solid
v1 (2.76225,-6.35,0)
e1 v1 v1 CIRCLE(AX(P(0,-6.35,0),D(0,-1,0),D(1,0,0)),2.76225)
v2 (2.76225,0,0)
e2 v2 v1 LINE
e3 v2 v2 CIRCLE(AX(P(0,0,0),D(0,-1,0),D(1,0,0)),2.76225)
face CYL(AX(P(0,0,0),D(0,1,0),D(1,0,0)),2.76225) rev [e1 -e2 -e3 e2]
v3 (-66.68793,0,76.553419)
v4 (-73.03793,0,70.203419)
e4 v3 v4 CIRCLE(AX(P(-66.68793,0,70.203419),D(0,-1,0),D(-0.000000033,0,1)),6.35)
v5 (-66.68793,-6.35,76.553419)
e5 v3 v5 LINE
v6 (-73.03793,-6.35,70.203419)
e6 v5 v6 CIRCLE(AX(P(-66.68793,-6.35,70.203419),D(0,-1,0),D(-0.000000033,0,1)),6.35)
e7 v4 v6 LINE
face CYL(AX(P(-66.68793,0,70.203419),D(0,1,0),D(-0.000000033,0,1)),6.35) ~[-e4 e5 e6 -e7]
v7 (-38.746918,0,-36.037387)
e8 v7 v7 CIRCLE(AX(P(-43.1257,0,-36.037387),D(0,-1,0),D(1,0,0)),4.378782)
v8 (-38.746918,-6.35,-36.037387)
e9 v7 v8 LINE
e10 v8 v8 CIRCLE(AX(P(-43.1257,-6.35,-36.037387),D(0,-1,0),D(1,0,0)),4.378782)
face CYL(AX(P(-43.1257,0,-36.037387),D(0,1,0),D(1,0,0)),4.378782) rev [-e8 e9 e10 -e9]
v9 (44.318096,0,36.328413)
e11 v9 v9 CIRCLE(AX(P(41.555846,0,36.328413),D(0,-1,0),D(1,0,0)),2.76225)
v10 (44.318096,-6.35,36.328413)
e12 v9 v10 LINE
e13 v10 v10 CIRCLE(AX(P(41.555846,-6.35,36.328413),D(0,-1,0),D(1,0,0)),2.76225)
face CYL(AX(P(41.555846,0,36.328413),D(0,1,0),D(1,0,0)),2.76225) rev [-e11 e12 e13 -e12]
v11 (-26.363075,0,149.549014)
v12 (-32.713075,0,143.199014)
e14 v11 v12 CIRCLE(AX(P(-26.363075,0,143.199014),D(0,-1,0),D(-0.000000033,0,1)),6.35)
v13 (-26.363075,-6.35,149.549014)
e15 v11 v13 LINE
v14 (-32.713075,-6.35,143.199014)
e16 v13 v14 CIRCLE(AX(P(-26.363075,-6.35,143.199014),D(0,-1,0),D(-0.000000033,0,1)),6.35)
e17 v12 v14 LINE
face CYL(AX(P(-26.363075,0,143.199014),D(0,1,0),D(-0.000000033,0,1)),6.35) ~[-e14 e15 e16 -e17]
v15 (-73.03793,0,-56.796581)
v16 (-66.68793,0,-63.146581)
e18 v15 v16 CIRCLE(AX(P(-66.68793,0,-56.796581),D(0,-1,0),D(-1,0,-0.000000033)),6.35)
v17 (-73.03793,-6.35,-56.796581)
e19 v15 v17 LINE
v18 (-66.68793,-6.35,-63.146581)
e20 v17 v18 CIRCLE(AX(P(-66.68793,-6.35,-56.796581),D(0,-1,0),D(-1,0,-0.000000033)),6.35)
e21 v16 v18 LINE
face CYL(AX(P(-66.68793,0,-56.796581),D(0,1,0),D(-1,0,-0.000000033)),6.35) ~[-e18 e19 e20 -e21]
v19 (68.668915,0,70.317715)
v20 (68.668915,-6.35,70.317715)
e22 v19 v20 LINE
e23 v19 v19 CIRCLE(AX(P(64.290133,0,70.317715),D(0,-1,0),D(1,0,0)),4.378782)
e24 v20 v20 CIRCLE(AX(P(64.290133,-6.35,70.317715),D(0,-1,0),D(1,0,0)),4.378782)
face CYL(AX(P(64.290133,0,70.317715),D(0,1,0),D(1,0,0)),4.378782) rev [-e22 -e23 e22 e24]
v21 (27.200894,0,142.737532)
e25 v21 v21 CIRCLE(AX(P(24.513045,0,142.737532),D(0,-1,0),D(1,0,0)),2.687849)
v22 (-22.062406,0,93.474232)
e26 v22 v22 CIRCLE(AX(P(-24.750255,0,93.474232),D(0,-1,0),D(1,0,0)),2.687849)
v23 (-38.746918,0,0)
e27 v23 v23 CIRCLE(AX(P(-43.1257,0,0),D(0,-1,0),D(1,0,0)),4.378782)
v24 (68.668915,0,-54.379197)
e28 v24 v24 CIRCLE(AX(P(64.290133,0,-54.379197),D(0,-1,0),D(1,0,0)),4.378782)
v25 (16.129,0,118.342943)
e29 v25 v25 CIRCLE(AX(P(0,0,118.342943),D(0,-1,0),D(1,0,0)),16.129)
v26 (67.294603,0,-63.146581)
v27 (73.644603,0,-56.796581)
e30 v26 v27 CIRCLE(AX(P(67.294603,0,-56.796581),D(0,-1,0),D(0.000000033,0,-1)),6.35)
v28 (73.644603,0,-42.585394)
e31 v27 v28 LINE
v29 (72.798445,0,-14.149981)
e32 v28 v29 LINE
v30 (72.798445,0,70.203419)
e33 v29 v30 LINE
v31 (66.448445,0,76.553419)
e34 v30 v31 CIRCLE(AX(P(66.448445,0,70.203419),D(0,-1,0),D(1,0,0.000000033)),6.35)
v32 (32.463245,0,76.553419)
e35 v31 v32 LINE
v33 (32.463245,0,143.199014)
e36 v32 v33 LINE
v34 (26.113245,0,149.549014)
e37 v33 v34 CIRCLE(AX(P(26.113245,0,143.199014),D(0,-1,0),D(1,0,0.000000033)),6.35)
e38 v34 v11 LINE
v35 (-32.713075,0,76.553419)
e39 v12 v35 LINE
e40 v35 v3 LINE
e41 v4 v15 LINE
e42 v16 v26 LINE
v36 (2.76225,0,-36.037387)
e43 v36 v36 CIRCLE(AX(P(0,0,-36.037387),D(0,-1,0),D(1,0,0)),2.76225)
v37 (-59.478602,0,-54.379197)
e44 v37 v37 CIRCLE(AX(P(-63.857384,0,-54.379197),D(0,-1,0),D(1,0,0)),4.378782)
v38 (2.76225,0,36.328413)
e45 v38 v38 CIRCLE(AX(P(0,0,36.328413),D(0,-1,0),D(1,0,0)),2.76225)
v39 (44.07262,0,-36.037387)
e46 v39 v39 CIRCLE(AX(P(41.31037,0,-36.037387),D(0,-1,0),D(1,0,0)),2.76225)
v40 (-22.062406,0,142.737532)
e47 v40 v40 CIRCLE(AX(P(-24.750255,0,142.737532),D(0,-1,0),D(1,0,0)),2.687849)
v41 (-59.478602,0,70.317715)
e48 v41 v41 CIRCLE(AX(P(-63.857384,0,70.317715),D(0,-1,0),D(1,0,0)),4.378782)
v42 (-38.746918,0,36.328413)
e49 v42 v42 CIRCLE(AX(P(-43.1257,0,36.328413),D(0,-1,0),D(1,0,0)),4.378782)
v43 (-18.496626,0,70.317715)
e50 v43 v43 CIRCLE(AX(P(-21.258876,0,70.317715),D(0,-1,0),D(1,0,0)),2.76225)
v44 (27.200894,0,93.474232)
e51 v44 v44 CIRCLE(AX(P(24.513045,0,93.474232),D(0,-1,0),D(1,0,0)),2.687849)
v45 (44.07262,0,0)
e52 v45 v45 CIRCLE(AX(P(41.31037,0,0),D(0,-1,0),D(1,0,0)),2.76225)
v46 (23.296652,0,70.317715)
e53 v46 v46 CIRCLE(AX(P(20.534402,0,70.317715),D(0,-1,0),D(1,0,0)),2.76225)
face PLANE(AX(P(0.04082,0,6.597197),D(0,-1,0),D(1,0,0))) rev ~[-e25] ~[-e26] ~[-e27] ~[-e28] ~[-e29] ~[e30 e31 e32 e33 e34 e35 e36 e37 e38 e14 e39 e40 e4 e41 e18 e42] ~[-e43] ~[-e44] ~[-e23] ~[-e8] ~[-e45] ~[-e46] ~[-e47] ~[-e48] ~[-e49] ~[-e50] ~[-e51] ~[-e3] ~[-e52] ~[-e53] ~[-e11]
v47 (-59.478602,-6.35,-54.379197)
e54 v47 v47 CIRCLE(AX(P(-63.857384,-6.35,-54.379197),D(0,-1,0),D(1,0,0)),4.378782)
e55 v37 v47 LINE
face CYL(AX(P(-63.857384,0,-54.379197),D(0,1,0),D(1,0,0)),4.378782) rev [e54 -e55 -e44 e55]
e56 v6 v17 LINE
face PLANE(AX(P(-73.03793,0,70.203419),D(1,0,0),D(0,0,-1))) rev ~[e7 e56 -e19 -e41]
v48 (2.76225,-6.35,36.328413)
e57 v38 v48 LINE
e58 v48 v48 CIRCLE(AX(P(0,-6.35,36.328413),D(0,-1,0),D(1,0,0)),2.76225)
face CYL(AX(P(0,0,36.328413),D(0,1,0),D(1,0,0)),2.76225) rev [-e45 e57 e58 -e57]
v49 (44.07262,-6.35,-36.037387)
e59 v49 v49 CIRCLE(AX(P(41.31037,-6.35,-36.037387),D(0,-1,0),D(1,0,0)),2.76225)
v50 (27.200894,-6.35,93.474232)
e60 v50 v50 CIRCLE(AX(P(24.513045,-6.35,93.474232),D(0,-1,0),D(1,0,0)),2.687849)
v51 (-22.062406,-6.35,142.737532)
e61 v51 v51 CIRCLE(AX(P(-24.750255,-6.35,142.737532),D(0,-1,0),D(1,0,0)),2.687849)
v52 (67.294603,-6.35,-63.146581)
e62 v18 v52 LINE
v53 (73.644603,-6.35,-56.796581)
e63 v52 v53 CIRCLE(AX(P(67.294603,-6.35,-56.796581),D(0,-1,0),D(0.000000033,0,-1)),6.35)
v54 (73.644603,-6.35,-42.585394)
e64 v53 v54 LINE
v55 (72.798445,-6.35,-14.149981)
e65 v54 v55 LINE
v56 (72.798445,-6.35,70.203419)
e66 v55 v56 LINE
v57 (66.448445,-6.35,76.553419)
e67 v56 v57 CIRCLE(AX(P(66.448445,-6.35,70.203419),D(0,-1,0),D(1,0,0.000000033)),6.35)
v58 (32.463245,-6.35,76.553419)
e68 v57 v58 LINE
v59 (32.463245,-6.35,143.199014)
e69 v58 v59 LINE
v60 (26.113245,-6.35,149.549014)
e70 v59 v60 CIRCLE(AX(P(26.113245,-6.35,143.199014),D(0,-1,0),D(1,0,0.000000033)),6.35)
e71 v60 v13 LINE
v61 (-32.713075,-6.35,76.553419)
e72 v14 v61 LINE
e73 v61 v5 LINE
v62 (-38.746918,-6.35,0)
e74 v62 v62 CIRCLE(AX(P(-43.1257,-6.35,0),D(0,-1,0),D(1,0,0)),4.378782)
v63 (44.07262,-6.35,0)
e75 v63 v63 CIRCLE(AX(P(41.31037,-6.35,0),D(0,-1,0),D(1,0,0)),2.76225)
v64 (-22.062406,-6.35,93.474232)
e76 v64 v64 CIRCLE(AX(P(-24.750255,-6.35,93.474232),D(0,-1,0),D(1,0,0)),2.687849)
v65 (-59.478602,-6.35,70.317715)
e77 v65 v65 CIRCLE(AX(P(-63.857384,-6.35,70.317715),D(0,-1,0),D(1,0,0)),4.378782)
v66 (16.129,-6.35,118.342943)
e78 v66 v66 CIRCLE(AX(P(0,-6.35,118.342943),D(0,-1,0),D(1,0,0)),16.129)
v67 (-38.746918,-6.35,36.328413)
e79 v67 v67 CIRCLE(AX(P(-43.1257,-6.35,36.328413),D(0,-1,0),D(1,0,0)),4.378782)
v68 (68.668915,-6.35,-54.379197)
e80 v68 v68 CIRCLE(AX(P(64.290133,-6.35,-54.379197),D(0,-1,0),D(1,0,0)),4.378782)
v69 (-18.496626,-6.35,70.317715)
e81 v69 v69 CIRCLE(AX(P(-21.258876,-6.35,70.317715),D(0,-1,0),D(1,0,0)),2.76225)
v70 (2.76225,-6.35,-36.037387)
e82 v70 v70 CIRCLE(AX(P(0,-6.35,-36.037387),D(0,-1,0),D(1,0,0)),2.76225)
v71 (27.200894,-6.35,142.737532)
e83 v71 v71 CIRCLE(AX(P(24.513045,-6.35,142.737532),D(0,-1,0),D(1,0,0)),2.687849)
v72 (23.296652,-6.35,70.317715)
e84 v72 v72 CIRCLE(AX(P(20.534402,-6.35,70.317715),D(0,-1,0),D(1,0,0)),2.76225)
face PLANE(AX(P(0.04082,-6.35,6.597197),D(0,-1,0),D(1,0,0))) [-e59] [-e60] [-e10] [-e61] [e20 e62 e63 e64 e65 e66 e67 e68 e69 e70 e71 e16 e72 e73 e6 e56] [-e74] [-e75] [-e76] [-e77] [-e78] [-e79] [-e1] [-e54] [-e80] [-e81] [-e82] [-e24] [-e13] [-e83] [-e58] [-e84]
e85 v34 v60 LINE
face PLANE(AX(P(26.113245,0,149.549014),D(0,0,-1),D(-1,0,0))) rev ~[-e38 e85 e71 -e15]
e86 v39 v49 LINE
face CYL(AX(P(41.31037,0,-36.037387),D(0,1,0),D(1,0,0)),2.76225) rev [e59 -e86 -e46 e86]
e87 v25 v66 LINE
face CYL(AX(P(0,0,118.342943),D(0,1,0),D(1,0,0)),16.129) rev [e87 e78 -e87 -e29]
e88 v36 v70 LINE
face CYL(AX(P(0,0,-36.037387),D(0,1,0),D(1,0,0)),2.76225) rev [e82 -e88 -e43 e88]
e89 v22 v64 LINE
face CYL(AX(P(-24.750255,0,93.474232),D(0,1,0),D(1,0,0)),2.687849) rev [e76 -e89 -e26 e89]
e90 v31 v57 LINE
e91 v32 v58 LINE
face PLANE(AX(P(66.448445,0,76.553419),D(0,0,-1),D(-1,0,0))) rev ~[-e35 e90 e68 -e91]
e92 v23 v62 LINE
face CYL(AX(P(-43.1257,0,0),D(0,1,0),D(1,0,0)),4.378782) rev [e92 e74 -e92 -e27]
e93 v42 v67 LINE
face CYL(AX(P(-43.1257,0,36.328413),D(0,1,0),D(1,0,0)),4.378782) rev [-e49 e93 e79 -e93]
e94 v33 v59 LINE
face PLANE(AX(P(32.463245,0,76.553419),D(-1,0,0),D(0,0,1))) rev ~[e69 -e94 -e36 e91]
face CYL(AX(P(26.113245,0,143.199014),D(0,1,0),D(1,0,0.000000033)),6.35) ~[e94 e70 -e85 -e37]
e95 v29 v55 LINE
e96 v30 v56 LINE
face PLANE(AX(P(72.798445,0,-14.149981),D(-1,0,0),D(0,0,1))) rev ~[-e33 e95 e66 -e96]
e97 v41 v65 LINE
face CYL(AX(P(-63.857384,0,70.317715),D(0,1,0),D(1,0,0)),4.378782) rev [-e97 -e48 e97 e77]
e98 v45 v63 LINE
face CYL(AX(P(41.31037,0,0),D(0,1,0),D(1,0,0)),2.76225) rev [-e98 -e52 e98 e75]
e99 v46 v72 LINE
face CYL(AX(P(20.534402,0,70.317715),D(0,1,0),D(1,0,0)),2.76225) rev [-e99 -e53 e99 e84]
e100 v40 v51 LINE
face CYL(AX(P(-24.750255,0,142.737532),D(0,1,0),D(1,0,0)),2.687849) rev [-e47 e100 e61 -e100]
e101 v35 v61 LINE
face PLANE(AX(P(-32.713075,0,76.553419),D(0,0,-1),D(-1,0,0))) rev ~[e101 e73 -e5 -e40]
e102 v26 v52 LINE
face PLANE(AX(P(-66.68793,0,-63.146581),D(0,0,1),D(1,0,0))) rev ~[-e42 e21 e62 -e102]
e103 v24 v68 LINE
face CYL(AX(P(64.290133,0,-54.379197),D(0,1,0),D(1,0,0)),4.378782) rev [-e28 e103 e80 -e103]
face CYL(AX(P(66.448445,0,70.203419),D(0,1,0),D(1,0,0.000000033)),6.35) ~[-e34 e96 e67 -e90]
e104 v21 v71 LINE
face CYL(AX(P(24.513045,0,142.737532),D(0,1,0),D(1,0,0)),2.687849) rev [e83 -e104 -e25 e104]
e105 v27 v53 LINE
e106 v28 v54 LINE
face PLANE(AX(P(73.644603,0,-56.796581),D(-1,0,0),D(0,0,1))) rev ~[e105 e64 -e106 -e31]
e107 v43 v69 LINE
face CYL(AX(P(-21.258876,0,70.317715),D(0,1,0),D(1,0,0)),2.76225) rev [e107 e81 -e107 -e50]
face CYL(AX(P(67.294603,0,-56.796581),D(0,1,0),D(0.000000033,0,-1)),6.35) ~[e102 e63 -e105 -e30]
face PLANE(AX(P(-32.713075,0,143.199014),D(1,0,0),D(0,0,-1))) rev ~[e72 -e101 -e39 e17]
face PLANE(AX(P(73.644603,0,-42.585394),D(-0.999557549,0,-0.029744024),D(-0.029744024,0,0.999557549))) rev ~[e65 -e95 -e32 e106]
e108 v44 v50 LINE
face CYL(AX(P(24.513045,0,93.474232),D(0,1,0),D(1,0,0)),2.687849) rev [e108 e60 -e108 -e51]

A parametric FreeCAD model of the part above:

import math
import FreeCAD as App
import Part
import Sketcher
Q = App.Units.Quantity

doc = App.newDocument("Part")
body = doc.addObject("PartDesign::Body", "Body")

sketch1 = body.newObject("Sketcher::SketchObject", "Sketch")
sketch1.AttachmentSupport = (doc.getObject("XZ_Plane"), [""])
sketch1.MapMode = "FlatFace"
sketch1.addGeometry([
    Part.ArcOfCircle(Part.Circle(App.Vector(66.4, 70.2, 0), App.Vector(0, 0, 1), 6.4), math.radians(0), math.radians(90)),
    Part.LineSegment(App.Vector(66.4, 76.6, 0), App.Vector(32.5, 76.6, 0)),
    Part.LineSegment(App.Vector(32.5, 76.6, 0), App.Vector(32.5, 143.2, 0)),
    Part.ArcOfCircle(Part.Circle(App.Vector(26.1, 143.2, 0), App.Vector(0, 0, 1), 6.4), math.radians(0), math.radians(90)),
    Part.LineSegment(App.Vector(26.1, 149.5, 0), App.Vector(-26.4, 149.5, 0)),
    Part.ArcOfCircle(Part.Circle(App.Vector(-26.4, 143.2, 0), App.Vector(0, 0, 1), 6.4), math.radians(90), math.radians(180)),
    Part.LineSegment(App.Vector(-32.7, 143.2, 0), App.Vector(-32.7, 76.6, 0)),
    Part.LineSegment(App.Vector(-32.7, 76.6, 0), App.Vector(-66.7, 76.6, 0)),
    Part.ArcOfCircle(Part.Circle(App.Vector(-66.7, 70.2, 0), App.Vector(0, 0, 1), 6.4), math.radians(90), math.radians(180)),
    Part.LineSegment(App.Vector(-73, 70.2, 0), App.Vector(-73, -56.8, 0)),
    Part.ArcOfCircle(Part.Circle(App.Vector(-66.7, -56.8, 0), App.Vector(0, 0, 1), 6.4), math.radians(-180), math.radians(-90)),
    Part.LineSegment(App.Vector(-66.7, -63.1, 0), App.Vector(67.3, -63.1, 0)),
    Part.ArcOfCircle(Part.Circle(App.Vector(67.3, -56.8, 0), App.Vector(0, 0, 1), 6.4), math.radians(-90), math.radians(0)),
    Part.LineSegment(App.Vector(73.6, -56.8, 0), App.Vector(73.6, -42.6, 0)),
    Part.LineSegment(App.Vector(73.6, -42.6, 0), App.Vector(72.8, -14.1, 0)),
    Part.LineSegment(App.Vector(72.8, -14.1, 0), App.Vector(72.8, 70.2, 0)),
    Part.Circle(App.Vector(-63.9, -54.4, 0), App.Vector(0, 0, 1), 4.4),
    Part.Circle(App.Vector(-43.1, -36, 0), App.Vector(0, 0, 1), 4.4),
    Part.Circle(App.Vector(0, -36, 0), App.Vector(0, 0, 1), 2.8),
    Part.Circle(App.Vector(-43.1, 0, 0), App.Vector(0, 0, 1), 4.4),
    Part.Circle(App.Vector(-43.1, 36.3, 0), App.Vector(0, 0, 1), 4.4),
    Part.Circle(App.Vector(0, 0, 0), App.Vector(0, 0, 1), 2.8),
    Part.Circle(App.Vector(0, 36.3, 0), App.Vector(0, 0, 1), 2.8),
    Part.Circle(App.Vector(41.3, -36, 0), App.Vector(0, 0, 1), 2.8),
    Part.Circle(App.Vector(64.3, -54.4, 0), App.Vector(0, 0, 1), 4.4),
    Part.Circle(App.Vector(41.3, 0, 0), App.Vector(0, 0, 1), 2.8),
    Part.Circle(App.Vector(41.6, 36.3, 0), App.Vector(0, 0, 1), 2.8),
    Part.Circle(App.Vector(-63.9, 70.3, 0), App.Vector(0, 0, 1), 4.4),
    Part.Circle(App.Vector(-21.3, 70.3, 0), App.Vector(0, 0, 1), 2.8),
    Part.Circle(App.Vector(-24.8, 93.5, 0), App.Vector(0, 0, 1), 2.7),
    Part.Circle(App.Vector(0, 118.3, 0), App.Vector(0, 0, 1), 16.1),
    Part.Circle(App.Vector(-24.8, 142.7, 0), App.Vector(0, 0, 1), 2.7),
    Part.Circle(App.Vector(20.5, 70.3, 0), App.Vector(0, 0, 1), 2.8),
    Part.Circle(App.Vector(24.5, 93.5, 0), App.Vector(0, 0, 1), 2.7),
    Part.Circle(App.Vector(64.3, 70.3, 0), App.Vector(0, 0, 1), 4.4),
    Part.Circle(App.Vector(24.5, 142.7, 0), App.Vector(0, 0, 1), 2.7),
], False)
sketch1.addConstraint([
    Sketcher.Constraint("Tangent", 0, 2, 1, 1),
    Sketcher.Constraint("Coincident", 1, 2, 2, 1),
    Sketcher.Constraint("Tangent", 2, 2, 3, 1),
    Sketcher.Constraint("Tangent", 3, 2, 4, 1),
    Sketcher.Constraint("Tangent", 4, 2, 5, 1),
    Sketcher.Constraint("Tangent", 5, 2, 6, 1),
    Sketcher.Constraint("Coincident", 6, 2, 7, 1),
    Sketcher.Constraint("Tangent", 7, 2, 8, 1),
    Sketcher.Constraint("Tangent", 8, 2, 9, 1),
    Sketcher.Constraint("Tangent", 9, 2, 10, 1),
    Sketcher.Constraint("Tangent", 10, 2, 11, 1),
    Sketcher.Constraint("Tangent", 11, 2, 12, 1),
    Sketcher.Constraint("Tangent", 12, 2, 13, 1),
    Sketcher.Constraint("Coincident", 13, 2, 14, 1),
    Sketcher.Constraint("Coincident", 14, 2, 15, 1),
    Sketcher.Constraint("Tangent", 15, 2, 0, 1),
    Sketcher.Constraint("Horizontal", 1),
    Sketcher.Constraint("Vertical", 2),
    Sketcher.Constraint("Horizontal", 4),
    Sketcher.Constraint("Vertical", 6),
    Sketcher.Constraint("Horizontal", 7),
    Sketcher.Constraint("Vertical", 9),
    Sketcher.Constraint("Horizontal", 11),
    Sketcher.Constraint("Vertical", 13),
    Sketcher.Constraint("Vertical", 15),
    Sketcher.Constraint("Coincident", 21, 3, -1, 1),
    Sketcher.Constraint("Equal", 0, 3),
    Sketcher.Constraint("Equal", 3, 5),
    Sketcher.Constraint("Equal", 5, 8),
    Sketcher.Constraint("Equal", 8, 10),
    Sketcher.Constraint("Equal", 10, 12),
    Sketcher.Constraint("Equal", 16, 17),
    Sketcher.Constraint("Equal", 17, 19),
    Sketcher.Constraint("Equal", 19, 20),
    Sketcher.Constraint("Equal", 18, 21),
    Sketcher.Constraint("Equal", 21, 22),
    Sketcher.Constraint("Equal", 22, 23),
    Sketcher.Constraint("Equal", 20, 24),
    Sketcher.Constraint("Equal", 23, 25),
    Sketcher.Constraint("Equal", 25, 26),
    Sketcher.Constraint("Equal", 24, 27),
    Sketcher.Constraint("Equal", 26, 28),
    Sketcher.Constraint("Equal", 29, 31),
    Sketcher.Constraint("Equal", 28, 32),
    Sketcher.Constraint("Equal", 31, 33),
    Sketcher.Constraint("Equal", 27, 34),
    Sketcher.Constraint("Equal", 33, 35),
    Sketcher.Constraint("PointOnObject", 18, 3, -2),
    Sketcher.Constraint("PointOnObject", 19, 3, -1),
    Sketcher.Constraint("PointOnObject", 22, 3, -2),
    Sketcher.Constraint("PointOnObject", 25, 3, -1),
    Sketcher.Constraint("PointOnObject", 30, 3, -2),
    Sketcher.Constraint("Horizontal", 0, 3, 8, 3),
    Sketcher.Constraint("Horizontal", 17, 3, 18, 3),
    Sketcher.Constraint("Horizontal", 20, 3, 22, 3),
    Sketcher.Constraint("Horizontal", 18, 3, 23, 3),
    Sketcher.Constraint("Horizontal", 16, 3, 24, 3),
    Sketcher.Constraint("Horizontal", 22, 3, 26, 3),
    Sketcher.Constraint("Horizontal", 27, 3, 28, 3),
    Sketcher.Constraint("Horizontal", 28, 3, 32, 3),
    Sketcher.Constraint("Horizontal", 29, 3, 33, 3),
    Sketcher.Constraint("Horizontal", 32, 3, 34, 3),
    Sketcher.Constraint("Horizontal", 31, 3, 35, 3),
    Sketcher.Constraint("Vertical", 17, 3, 19, 3),
    Sketcher.Constraint("Vertical", 19, 3, 20, 3),
    Sketcher.Constraint("Vertical", 23, 3, 25, 3),
    Sketcher.Constraint("Vertical", 16, 3, 27, 3),
    Sketcher.Constraint("Vertical", 29, 3, 31, 3),
    Sketcher.Constraint("Vertical", 24, 3, 34, 3),
    Sketcher.Constraint("Vertical", 33, 3, 35, 3),
    Sketcher.Constraint("Diameter", 30, Q("1.27 in")),
    Sketcher.Constraint("DistanceY", 9, 2, 9, 1, Q("5 in")),
    Sketcher.Constraint("Radius", 0, Q("0.25 in")),
    Sketcher.Constraint("Diameter", 18, Q("0.2175 in")),
    Sketcher.Constraint("Distance", 14, Q("1.12 in")),
    Sketcher.Constraint("DistanceX", 1, 2, 1, 1, Q("1.338 in")),
    Sketcher.Constraint("DistanceY", 15, 1, 15, 2, Q("3.321 in")),
    Sketcher.Constraint("DistanceX", 33, 3, 0, 3, Q("1.651 in")),
    Sketcher.Constraint("Diameter", 16, Q("8.757564 mm")),
    Sketcher.Constraint("Diameter", 29, Q("5.375698 mm")),
    Sketcher.Constraint("DistanceY", 8, 3, 27, 3, Q("0.0044999 in")),
    Sketcher.Constraint("DistanceY", 29, 3, 31, 3, Q("1.9395 in")),
    Sketcher.Constraint("DistanceX", 31, 3, 3, 3, Q("2.0025 in")),
    Sketcher.Constraint("DistanceX", 4, 2, 4, 1, Q("52.47632 mm")),
    Sketcher.Constraint("DistanceX", 17, 3, -1, 1, Q("43.1257 mm")),
    Sketcher.Constraint("DistanceX", -1, 1, 32, 3, Q("20.534402 mm")),
    Sketcher.Constraint("DistanceY", 17, 3, 20, 3, Q("72.3658 mm")),
    Sketcher.Constraint("DistanceX", 26, 3, 0, 3, Q("24.892599 mm")),
    Sketcher.Constraint("DistanceY", 27, 3, 5, 3, Q("72.881299 mm")),
    Sketcher.Constraint("DistanceX", 6, 2, 28, 3, Q("11.454199 mm")),
    Sketcher.Constraint("DistanceX", 7, 2, 7, 1, Q("33.974855 mm")),
    Sketcher.Constraint("DistanceX", 11, 1, 11, 2, Q("133.982533 mm")),
    Sketcher.Constraint("DistanceY", -1, 1, 0, 3, Q("70.203419 mm")),
    Sketcher.Constraint("DistanceX", 8, 3, -1, 1, Q("66.68793 mm")),
    Sketcher.Constraint("DistanceX", -1, 1, 23, 3, Q("41.31037 mm")),
    Sketcher.Constraint("DistanceY", -1, 1, 29, 3, Q("93.474232 mm")),
    Sketcher.Constraint("DistanceX", 16, 3, 0, 3, Q("130.305829 mm")),
    Sketcher.Constraint("DistanceY", 16, 3, 5, 3, Q("197.578211 mm")),
    Sketcher.Constraint("DistanceY", 16, 3, 17, 3, Q("18.34181 mm")),
    Sketcher.Constraint("DistanceX", 24, 3, 12, 3, Q("3.00447 mm")),
    Sketcher.Constraint("DistanceY", 29, 3, 30, 3, Q("24.868711 mm")),
])
pad1 = body.newObject("PartDesign::Pad", "Pad")
pad1.Profile = sketch1
pad1.Length = Q("0.25 in")

doc.recompute()
